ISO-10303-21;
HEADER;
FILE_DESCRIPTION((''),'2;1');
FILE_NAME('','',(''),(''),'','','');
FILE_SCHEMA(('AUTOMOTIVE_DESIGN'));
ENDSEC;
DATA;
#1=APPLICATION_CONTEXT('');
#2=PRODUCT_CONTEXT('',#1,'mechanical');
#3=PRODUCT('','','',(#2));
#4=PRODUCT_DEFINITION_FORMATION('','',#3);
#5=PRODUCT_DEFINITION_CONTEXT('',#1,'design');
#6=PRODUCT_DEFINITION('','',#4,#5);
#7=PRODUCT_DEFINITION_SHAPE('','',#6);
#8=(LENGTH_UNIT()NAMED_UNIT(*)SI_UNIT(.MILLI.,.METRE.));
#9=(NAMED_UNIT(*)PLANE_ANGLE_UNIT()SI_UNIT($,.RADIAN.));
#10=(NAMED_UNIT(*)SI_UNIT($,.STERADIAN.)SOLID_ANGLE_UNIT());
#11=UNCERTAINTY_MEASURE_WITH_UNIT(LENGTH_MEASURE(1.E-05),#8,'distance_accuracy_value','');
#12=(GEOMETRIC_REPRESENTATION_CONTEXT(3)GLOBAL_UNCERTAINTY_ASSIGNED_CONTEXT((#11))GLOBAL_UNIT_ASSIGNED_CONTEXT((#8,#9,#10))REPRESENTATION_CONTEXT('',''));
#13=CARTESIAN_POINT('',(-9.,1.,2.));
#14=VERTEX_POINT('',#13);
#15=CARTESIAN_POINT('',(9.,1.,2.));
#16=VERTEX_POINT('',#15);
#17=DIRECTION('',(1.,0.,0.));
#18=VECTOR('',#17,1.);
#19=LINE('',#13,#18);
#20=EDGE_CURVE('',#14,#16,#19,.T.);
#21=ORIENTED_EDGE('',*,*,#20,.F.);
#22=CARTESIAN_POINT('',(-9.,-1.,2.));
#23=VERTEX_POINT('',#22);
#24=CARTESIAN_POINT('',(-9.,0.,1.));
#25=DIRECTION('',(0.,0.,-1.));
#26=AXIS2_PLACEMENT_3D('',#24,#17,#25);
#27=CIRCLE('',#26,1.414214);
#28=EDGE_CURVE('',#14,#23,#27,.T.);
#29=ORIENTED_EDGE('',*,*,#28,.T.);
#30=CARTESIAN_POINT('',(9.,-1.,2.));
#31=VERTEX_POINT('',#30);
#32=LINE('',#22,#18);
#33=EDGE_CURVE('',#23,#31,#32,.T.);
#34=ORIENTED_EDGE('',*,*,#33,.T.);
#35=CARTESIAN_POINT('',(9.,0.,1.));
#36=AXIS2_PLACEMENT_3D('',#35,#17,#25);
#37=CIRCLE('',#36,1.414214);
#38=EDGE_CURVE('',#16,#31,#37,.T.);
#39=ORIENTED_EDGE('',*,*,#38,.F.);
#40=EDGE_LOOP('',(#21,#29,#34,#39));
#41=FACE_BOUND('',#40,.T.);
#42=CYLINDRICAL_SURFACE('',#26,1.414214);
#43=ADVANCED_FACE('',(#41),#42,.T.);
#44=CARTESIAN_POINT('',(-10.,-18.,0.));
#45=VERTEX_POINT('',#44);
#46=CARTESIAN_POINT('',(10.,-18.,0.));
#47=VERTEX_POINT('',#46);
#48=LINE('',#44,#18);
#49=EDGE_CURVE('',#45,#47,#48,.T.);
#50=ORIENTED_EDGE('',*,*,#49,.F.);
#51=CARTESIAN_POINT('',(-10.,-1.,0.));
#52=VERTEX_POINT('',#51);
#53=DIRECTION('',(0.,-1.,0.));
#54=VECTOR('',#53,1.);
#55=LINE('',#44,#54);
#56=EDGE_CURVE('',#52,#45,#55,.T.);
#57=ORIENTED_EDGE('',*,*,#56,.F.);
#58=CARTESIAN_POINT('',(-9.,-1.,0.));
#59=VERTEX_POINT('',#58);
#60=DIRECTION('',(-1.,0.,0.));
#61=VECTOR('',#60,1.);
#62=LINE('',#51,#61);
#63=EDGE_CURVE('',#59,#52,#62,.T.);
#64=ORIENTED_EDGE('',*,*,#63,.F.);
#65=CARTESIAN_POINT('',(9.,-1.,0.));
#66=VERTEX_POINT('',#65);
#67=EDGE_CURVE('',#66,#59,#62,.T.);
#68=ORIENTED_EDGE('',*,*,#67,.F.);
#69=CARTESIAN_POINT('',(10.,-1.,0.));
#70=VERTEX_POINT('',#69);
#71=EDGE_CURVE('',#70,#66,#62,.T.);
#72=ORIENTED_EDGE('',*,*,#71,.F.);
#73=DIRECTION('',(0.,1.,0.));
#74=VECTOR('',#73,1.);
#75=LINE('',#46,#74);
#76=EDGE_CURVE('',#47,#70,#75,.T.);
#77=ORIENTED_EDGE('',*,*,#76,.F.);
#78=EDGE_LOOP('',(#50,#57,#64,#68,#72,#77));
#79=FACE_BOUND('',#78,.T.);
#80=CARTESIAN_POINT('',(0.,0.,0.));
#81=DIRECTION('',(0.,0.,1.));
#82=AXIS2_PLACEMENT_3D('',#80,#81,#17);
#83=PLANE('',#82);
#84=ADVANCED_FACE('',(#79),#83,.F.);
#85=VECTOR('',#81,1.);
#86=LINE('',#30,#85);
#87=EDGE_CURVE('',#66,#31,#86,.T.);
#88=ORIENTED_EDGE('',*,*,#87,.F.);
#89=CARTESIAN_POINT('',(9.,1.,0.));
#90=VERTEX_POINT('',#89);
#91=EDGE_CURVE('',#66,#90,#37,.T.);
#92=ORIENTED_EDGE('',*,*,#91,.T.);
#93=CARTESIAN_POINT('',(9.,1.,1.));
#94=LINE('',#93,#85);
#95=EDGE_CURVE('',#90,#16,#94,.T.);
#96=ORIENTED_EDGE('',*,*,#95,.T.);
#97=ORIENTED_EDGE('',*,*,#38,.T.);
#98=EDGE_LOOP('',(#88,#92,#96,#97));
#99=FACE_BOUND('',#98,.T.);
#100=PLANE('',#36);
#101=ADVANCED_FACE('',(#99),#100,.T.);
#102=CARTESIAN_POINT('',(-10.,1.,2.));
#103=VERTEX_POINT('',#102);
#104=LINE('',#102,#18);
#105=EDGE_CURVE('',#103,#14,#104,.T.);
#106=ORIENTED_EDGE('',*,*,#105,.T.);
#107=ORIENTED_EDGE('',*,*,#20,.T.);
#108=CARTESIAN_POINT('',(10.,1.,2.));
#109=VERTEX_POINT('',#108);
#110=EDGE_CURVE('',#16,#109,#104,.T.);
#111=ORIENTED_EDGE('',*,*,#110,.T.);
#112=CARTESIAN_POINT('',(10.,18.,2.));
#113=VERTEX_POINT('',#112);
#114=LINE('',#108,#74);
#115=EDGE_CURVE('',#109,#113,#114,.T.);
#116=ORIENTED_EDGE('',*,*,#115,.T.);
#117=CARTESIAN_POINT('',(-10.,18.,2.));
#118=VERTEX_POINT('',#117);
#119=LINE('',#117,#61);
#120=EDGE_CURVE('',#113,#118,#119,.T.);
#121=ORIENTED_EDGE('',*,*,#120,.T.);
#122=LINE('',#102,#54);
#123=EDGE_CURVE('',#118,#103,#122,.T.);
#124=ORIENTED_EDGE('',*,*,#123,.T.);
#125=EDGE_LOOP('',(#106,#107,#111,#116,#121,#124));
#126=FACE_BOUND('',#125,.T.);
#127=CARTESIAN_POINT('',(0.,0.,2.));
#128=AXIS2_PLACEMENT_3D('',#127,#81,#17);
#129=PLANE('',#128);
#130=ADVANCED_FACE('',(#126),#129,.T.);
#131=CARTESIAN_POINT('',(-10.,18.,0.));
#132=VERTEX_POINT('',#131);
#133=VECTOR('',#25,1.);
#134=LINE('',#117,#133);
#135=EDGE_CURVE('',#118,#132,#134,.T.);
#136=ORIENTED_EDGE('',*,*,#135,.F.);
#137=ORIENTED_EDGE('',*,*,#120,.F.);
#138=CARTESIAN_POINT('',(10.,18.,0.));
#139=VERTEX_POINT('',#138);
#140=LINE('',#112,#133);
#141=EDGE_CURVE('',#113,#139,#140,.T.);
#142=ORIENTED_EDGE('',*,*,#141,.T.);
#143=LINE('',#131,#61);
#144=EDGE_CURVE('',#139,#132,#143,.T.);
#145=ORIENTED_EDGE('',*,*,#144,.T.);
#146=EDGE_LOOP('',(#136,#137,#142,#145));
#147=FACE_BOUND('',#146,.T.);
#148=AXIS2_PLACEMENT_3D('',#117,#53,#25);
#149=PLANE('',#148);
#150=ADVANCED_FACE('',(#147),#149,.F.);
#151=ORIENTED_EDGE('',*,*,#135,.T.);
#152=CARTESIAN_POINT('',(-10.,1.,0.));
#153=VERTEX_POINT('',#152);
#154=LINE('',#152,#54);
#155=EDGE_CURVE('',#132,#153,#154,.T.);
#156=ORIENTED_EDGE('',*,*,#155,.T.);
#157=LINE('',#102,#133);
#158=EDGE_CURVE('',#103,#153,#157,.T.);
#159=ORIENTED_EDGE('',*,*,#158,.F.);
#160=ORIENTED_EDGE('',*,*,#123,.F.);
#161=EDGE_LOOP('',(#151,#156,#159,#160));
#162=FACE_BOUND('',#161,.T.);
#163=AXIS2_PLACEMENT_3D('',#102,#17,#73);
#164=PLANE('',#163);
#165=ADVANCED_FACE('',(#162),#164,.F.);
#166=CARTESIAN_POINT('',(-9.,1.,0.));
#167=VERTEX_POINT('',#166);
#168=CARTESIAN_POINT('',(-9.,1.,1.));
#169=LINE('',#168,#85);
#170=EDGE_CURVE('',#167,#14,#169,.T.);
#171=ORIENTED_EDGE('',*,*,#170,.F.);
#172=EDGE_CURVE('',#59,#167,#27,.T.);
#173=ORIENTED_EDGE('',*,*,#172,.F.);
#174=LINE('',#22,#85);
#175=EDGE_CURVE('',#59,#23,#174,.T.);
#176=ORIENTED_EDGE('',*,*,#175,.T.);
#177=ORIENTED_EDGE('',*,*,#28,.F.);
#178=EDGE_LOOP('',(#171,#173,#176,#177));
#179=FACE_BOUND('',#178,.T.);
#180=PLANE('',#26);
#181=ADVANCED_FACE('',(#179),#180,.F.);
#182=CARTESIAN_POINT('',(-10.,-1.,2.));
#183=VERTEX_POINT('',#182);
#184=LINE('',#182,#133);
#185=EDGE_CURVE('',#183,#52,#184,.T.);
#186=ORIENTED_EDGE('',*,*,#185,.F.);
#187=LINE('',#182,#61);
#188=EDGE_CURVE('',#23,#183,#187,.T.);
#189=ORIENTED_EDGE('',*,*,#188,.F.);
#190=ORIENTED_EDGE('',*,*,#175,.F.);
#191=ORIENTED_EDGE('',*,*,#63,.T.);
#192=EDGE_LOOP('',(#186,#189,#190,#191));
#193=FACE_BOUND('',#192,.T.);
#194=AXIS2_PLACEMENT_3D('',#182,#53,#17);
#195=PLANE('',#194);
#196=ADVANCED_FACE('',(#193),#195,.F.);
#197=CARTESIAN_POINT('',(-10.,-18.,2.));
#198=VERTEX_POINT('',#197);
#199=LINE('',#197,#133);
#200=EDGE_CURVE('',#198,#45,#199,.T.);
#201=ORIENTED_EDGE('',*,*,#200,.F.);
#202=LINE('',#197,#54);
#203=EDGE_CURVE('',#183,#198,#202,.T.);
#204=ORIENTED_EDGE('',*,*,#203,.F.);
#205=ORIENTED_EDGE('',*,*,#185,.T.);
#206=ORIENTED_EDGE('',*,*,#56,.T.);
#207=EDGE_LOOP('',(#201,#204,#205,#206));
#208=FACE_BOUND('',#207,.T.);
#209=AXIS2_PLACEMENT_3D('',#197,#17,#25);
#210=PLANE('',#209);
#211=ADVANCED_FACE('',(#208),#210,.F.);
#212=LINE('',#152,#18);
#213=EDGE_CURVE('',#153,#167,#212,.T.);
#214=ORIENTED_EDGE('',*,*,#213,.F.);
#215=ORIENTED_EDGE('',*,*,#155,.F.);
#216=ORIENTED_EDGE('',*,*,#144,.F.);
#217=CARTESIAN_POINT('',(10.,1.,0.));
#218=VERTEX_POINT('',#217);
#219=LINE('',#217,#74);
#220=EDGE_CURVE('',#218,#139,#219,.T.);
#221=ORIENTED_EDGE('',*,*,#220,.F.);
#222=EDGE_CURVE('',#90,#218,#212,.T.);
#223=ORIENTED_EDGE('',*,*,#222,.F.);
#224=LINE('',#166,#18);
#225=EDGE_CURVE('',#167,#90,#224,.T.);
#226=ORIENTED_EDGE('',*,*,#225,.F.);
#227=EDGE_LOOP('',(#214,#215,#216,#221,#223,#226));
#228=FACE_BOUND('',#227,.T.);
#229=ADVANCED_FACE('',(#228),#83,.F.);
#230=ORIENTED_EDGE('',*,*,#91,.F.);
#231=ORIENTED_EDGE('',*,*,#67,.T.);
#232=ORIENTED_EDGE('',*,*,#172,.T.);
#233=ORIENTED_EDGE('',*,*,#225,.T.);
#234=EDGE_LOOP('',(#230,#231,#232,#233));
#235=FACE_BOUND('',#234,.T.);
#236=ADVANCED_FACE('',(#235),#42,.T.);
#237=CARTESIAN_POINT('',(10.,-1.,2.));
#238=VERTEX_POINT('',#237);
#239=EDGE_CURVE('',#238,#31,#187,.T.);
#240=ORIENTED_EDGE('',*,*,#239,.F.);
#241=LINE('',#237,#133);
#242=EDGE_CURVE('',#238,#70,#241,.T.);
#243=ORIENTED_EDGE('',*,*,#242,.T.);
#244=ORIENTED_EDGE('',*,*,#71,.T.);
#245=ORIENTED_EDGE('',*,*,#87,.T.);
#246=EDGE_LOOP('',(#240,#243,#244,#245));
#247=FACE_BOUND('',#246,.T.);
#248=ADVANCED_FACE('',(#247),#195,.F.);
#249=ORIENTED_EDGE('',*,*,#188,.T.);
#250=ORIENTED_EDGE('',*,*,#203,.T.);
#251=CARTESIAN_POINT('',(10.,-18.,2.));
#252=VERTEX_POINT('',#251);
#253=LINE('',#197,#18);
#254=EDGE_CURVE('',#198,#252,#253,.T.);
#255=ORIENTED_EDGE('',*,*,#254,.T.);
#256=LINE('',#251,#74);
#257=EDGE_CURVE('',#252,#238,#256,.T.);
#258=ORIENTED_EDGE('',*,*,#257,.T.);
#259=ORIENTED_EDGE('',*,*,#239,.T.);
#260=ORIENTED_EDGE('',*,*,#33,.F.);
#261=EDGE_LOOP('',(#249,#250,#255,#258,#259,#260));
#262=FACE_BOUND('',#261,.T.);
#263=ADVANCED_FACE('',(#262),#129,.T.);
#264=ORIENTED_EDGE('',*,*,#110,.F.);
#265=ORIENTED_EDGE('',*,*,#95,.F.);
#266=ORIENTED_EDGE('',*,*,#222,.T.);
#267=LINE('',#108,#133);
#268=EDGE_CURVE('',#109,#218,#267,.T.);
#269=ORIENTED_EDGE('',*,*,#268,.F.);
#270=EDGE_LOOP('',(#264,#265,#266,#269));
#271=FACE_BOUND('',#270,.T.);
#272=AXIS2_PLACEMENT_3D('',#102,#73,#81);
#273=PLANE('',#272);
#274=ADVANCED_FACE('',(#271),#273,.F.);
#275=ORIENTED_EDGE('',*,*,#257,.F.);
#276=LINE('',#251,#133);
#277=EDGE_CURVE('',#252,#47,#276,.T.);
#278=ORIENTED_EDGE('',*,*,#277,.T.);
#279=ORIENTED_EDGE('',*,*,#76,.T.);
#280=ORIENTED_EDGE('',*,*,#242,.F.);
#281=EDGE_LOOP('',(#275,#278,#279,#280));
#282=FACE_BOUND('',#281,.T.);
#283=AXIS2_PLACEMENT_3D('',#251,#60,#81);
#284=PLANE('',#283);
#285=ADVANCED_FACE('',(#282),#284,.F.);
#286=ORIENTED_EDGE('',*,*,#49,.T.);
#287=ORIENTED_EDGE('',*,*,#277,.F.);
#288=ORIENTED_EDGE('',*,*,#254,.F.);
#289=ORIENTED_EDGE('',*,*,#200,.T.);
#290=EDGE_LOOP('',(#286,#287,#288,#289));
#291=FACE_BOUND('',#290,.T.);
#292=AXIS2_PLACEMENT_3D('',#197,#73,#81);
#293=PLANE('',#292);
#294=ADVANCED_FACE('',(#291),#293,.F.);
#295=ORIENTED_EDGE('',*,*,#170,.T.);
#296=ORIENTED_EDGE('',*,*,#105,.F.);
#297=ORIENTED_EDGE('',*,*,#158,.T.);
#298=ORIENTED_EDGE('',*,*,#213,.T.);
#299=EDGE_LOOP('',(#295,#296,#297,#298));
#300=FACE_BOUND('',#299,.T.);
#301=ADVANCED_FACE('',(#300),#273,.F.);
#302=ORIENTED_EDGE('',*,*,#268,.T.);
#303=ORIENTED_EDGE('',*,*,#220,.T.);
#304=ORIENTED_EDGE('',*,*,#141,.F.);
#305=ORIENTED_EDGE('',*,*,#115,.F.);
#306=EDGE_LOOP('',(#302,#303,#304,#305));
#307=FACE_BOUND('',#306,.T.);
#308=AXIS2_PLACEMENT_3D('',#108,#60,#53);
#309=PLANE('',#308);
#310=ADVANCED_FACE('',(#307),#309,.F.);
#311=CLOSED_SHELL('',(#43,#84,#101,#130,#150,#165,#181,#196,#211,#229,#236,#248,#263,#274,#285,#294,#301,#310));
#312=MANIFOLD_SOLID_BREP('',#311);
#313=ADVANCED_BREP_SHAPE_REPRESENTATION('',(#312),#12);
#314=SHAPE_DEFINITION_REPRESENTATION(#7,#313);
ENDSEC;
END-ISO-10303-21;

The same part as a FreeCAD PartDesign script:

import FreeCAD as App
import Part
import Sketcher

V = App.Vector
Q = App.Units.Quantity

doc = App.newDocument("Part")
body = doc.addObject("PartDesign::Body", "Body")

sketch1 = doc.addObject("Sketcher::SketchObject", "Sketch")
body.addObject(sketch1)
sketch1.AttachmentSupport = (doc.XY_Plane, [""])
sketch1.MapMode = "FlatFace"
sketch1.addGeometry(Part.LineSegment(V(-10, -18, 0), V(10, -18, 0)), False)
sketch1.addGeometry(Part.LineSegment(V(10, -18, 0), V(10, -1, 0)), False)
sketch1.addGeometry(Part.LineSegment(V(10, -1, 0), V(-10, -1, 0)), False)
sketch1.addGeometry(Part.LineSegment(V(-10, -1, 0), V(-10, -18, 0)), False)
sketch1.addConstraint(Sketcher.Constraint("Coincident", 0, 2, 1, 1))
sketch1.addConstraint(Sketcher.Constraint("Coincident", 1, 2, 2, 1))
sketch1.addConstraint(Sketcher.Constraint("Coincident", 2, 2, 3, 1))
sketch1.addConstraint(Sketcher.Constraint("Coincident", 3, 2, 0, 1))
sketch1.addConstraint(Sketcher.Constraint("Horizontal", 0))
sketch1.addConstraint(Sketcher.Constraint("Vertical", 1))
sketch1.addConstraint(Sketcher.Constraint("Horizontal", 2))
sketch1.addConstraint(Sketcher.Constraint("Vertical", 3))
sketch1.addConstraint(Sketcher.Constraint("DistanceX", 0, 1, 0, 2, Q("20 mm")))
sketch1.addConstraint(Sketcher.Constraint("DistanceY", 1, 1, 1, 2, Q("17 mm")))
sketch1.addConstraint(Sketcher.Constraint("DistanceX", -1, 1, 0, 2, Q("10 mm")))
sketch1.addConstraint(Sketcher.Constraint("DistanceY", 0, 2, -1, 1, Q("18 mm")))
pad1 = doc.addObject("PartDesign::Pad", "Pad")
body.addObject(pad1)
pad1.Profile = sketch1
pad1.Length = 2
body2 = doc.addObject("PartDesign::Body", "Body001")

sketch2 = doc.addObject("Sketcher::SketchObject", "Sketch001")
body2.addObject(sketch2)
sketch2.AttachmentSupport = (doc.getObject("XY_Plane001"), [""])
sketch2.MapMode = "FlatFace"
sketch2.addGeometry(Part.LineSegment(V(-10, 1, 0), V(10, 1, 0)), False)
sketch2.addGeometry(Part.LineSegment(V(10, 1, 0), V(10, 18, 0)), False)
sketch2.addGeometry(Part.LineSegment(V(10, 18, 0), V(-10, 18, 0)), False)
sketch2.addGeometry(Part.LineSegment(V(-10, 18, 0), V(-10, 1, 0)), False)
sketch2.addConstraint(Sketcher.Constraint("Coincident", 0, 2, 1, 1))
sketch2.addConstraint(Sketcher.Constraint("Coincident", 1, 2, 2, 1))
sketch2.addConstraint(Sketcher.Constraint("Coincident", 2, 2, 3, 1))
sketch2.addConstraint(Sketcher.Constraint("Coincident", 3, 2, 0, 1))
sketch2.addConstraint(Sketcher.Constraint("Horizontal", 0))
sketch2.addConstraint(Sketcher.Constraint("Vertical", 1))
sketch2.addConstraint(Sketcher.Constraint("Horizontal", 2))
sketch2.addConstraint(Sketcher.Constraint("Vertical", 3))
sketch2.addConstraint(Sketcher.Constraint("DistanceX", 0, 1, 0, 2, Q("20 mm")))
sketch2.addConstraint(Sketcher.Constraint("DistanceY", 1, 1, 1, 2, Q("17 mm")))
sketch2.addConstraint(Sketcher.Constraint("DistanceX", -1, 1, 0, 2, Q("10 mm")))
sketch2.addConstraint(Sketcher.Constraint("DistanceY", -1, 1, 0, 2, Q("1 mm")))
pad2 = doc.addObject("PartDesign::Pad", "Pad001")
body2.addObject(pad2)
pad2.Profile = sketch2
pad2.Length = 2
body.AllowCompound = True
doc.recompute()

boolean = doc.addObject("PartDesign::Boolean", "Boolean")
body.addObject(boolean)
boolean.Type = "Fuse"
boolean.addObjects([body2])

sketch3 = doc.addObject("Sketcher::SketchObject", "Sketch002")
body.addObject(sketch3)
sketch3.AttachmentSupport = (doc.YZ_Plane, [""])
sketch3.MapMode = "FlatFace"
sketch3.addGeometry(Part.Circle(V(0, 1, 0), V(0, 0, 1), 1.414214), False)
sketch3.addConstraint(Sketcher.Constraint("PointOnObject", 0, 3, -2))
sketch3.addConstraint(Sketcher.Constraint("DistanceY", -1, 1, 0, 3, Q("1 mm")))
sketch3.addConstraint(Sketcher.Constraint("Diameter", 0, Q("2.828427 mm")))
pad3 = doc.addObject("PartDesign::Pad", "Pad002")
body.addObject(pad3)
pad3.Profile = sketch3
pad3.Type = "TwoLengths"
pad3.Length = 9
pad3.Length2 = 9

doc.recompute()
